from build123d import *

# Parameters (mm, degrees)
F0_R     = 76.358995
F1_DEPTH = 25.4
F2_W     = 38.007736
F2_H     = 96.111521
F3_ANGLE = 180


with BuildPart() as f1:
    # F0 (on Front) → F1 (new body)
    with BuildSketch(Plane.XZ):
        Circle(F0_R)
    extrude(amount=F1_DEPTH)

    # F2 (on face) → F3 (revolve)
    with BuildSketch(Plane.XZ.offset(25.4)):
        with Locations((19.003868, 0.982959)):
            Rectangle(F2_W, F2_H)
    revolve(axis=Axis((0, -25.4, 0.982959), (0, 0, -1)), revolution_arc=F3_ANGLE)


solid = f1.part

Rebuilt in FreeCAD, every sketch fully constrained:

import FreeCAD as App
import Part
import Sketcher

V = App.Vector
Q = App.Units.Quantity


def add_polygon(sketch, points):
    """Adds a closed chain of lines whose ends are joined by coincident constraints."""
    first, n = sketch.GeometryCount, len(points)
    for a, b in zip(points, points[1:] + points[:1]):
        sketch.addGeometry(Part.LineSegment(App.Vector(*a, 0), App.Vector(*b, 0)), False)
    for i in range(n):
        sketch.addConstraint(Sketcher.Constraint("Coincident", first + i, 2, first + (i + 1) % n, 1))

doc = App.newDocument("Part")
body = doc.addObject("PartDesign::Body", "Body")

# Sketch on XZ plane
sketch1 = doc.addObject("Sketcher::SketchObject", "Sketch")
body.addObject(sketch1)
sketch1.AttachmentSupport = (doc.XZ_Plane, [""])
sketch1.MapMode = "FlatFace"
sketch1.addGeometry(Part.Circle(V(0, 0, 0), V(0, 0, 1), 76), False)
sketch1.addConstraint(Sketcher.Constraint("Coincident", 0, 3, -1, 1))
sketch1.addConstraint(Sketcher.Constraint("Diameter", 0, 152.71799))
pad1 = doc.addObject("PartDesign::Pad", "Pad")
body.addObject(pad1)
pad1.Profile = sketch1
pad1.Length = Q("1 in")

# Sketch on XZ plane
sketch2 = doc.addObject("Sketcher::SketchObject", "Sketch001")
body.addObject(sketch2)
sketch2.AttachmentSupport = (doc.XZ_Plane, [""])
sketch2.MapMode = "FlatFace"
sketch2.AttachmentOffset = App.Placement(V(0, 0, 1 * 25.4), App.Rotation())
add_polygon(sketch2, [(0, 49), (0, -47), (38, -47), (38, 49)])  # lines 0-3
sketch2.addConstraint(Sketcher.Constraint("Vertical", 0))
sketch2.addConstraint(Sketcher.Constraint("Horizontal", 1))
sketch2.addConstraint(Sketcher.Constraint("Vertical", 2))
sketch2.addConstraint(Sketcher.Constraint("Horizontal", 3))
sketch2.addConstraint(Sketcher.Constraint("PointOnObject", 0, 2, -2))
sketch2.addConstraint(Sketcher.Constraint("DistanceY", 0, 2, 0, 1, 96.111521))
sketch2.addConstraint(Sketcher.Constraint("DistanceY", 0, 2, -1, 1, 47.072801))
sketch2.addConstraint(Sketcher.Constraint("DistanceX", 1, 1, 1, 2, 38.007736))
revolution = doc.addObject("PartDesign::Revolution", "Revolution")
body.addObject(revolution)
revolution.Profile = sketch2
revolution.ReferenceAxis = (sketch2, ["V_Axis"])
revolution.Angle = 180
revolution.Reversed = True

doc.recompute()
